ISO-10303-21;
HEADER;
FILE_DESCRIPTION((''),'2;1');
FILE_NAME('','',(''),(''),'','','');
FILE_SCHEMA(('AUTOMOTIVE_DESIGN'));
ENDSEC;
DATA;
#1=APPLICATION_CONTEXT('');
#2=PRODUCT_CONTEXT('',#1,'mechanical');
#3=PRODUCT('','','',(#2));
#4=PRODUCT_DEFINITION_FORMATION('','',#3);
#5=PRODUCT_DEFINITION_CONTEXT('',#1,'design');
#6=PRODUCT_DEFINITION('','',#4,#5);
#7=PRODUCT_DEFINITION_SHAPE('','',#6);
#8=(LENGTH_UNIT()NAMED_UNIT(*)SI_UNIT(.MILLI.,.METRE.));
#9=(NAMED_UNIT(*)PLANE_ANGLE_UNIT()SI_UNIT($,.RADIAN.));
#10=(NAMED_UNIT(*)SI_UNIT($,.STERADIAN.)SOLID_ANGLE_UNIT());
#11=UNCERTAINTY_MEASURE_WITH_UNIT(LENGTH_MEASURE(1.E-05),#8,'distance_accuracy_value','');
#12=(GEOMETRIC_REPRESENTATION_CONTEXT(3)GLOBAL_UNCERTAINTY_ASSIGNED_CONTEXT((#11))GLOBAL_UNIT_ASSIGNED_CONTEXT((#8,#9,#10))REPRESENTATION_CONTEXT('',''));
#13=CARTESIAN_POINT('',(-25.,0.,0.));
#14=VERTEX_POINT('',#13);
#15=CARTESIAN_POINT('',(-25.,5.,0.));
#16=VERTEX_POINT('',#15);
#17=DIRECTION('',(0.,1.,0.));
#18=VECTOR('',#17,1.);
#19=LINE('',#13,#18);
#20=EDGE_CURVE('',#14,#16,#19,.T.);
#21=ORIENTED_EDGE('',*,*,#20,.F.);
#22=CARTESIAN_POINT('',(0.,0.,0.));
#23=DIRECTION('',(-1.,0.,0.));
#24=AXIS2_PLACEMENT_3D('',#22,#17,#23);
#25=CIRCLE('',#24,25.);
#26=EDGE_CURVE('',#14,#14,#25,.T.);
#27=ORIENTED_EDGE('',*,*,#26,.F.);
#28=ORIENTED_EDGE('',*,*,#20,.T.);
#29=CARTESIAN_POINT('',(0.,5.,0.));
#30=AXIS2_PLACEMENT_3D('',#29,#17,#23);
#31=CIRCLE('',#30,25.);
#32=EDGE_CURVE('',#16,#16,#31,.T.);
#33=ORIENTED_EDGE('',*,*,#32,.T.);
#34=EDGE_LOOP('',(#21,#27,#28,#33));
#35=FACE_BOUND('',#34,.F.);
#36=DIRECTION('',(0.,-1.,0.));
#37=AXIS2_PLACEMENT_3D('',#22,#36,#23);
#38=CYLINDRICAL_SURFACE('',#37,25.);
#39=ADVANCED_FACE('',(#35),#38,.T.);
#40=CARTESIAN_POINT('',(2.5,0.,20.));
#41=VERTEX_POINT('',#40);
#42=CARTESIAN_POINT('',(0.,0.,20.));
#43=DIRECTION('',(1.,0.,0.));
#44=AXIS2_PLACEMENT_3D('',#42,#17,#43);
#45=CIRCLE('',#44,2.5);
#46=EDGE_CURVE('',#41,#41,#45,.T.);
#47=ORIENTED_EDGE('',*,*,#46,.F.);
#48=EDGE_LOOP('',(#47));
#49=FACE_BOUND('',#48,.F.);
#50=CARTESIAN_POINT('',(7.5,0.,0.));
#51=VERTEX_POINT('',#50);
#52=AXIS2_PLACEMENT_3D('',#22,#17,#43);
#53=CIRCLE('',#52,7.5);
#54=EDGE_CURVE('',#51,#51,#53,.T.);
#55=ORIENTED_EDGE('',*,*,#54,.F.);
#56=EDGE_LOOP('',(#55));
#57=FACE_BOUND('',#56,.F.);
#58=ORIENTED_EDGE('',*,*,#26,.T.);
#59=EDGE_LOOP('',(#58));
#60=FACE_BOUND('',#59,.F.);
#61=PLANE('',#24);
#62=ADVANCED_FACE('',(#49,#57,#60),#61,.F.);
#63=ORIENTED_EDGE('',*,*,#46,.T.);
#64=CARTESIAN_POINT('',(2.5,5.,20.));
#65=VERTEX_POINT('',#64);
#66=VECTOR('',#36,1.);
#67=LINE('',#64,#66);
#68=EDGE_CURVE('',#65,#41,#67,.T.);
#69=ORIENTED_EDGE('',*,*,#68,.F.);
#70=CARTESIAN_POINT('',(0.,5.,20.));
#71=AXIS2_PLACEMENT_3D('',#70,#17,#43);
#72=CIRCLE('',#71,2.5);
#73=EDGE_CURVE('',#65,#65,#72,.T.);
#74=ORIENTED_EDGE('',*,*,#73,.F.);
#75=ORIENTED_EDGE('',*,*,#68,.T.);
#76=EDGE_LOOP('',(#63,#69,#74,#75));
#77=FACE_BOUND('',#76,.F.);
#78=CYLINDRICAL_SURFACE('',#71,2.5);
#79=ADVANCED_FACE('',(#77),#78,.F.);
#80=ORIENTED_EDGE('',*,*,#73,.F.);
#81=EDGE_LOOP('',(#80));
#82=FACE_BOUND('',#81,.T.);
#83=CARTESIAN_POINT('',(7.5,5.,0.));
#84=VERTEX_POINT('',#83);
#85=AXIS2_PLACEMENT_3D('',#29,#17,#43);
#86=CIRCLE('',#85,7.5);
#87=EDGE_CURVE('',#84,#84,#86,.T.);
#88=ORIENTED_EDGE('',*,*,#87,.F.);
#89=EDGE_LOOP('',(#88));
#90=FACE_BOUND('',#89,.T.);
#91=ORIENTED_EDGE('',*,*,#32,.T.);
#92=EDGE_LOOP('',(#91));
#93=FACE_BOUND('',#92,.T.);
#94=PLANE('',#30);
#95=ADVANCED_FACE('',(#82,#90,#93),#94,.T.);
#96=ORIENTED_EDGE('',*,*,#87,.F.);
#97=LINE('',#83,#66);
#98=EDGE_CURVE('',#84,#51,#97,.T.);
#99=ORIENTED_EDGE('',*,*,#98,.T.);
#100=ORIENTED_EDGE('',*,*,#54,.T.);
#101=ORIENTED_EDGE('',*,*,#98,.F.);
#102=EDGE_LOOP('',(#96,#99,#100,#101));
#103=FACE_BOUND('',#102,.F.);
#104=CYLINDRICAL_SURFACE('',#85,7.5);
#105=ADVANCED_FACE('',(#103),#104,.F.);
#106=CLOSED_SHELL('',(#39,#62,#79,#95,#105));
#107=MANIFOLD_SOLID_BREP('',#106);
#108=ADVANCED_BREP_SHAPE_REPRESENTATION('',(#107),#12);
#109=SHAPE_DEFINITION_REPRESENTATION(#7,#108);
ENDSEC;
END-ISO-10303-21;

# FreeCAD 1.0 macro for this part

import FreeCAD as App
import Part
import Sketcher

doc = App.newDocument("Part")
body = doc.addObject("PartDesign::Body", "Body")

sketch1 = doc.addObject("Sketcher::SketchObject", "Sketch")
body.addObject(sketch1)
sketch1.AttachmentSupport = (doc.XZ_Plane, [""])
sketch1.MapMode = "FlatFace"
sketch1.addGeometry(Part.Circle(App.Vector(0, 0, 0), App.Vector(0, 0, 1), 25), False)
sketch1.addConstraint([
    Sketcher.Constraint("Coincident", 0, 3, -1, 1),
    Sketcher.Constraint("Diameter", 0, 50.0),
])
pad1 = doc.addObject("PartDesign::Pad", "Pad")
body.addObject(pad1)
pad1.Profile = sketch1
pad1.Length = 5
pad1.Reversed = True

sketch2 = doc.addObject("Sketcher::SketchObject", "Sketch001")
body.addObject(sketch2)
sketch2.AttachmentSupport = (doc.XZ_Plane, [""])
sketch2.MapMode = "FlatFace"
sketch2.AttachmentOffset = App.Placement(App.Vector(0, 0, -5), App.Rotation())
sketch2.addGeometry(Part.Circle(App.Vector(0, 0, 0), App.Vector(0, 0, 1), 8), False)
sketch2.addConstraint([
    Sketcher.Constraint("Coincident", 0, 3, -1, 1),
    Sketcher.Constraint("Diameter", 0, 15.0),
])
pocket1 = doc.addObject("PartDesign::Pocket", "Pocket")
body.addObject(pocket1)
pocket1.Profile = sketch2
pocket1.Type = "ThroughAll"
pocket1.Reversed = True

sketch3 = doc.addObject("Sketcher::SketchObject", "Sketch002")
body.addObject(sketch3)
sketch3.AttachmentSupport = (doc.XZ_Plane, [""])
sketch3.MapMode = "FlatFace"
sketch3.AttachmentOffset = App.Placement(App.Vector(0, 0, -5), App.Rotation())
sketch3.addGeometry(Part.Circle(App.Vector(0, 20, 0), App.Vector(0, 0, 1), 2.5), False)
sketch3.addConstraint([
    Sketcher.Constraint("PointOnObject", 0, 3, -2),
    Sketcher.Constraint("Diameter", 0, 5.0),
    Sketcher.Constraint("DistanceY", -1, 1, 0, 3, 20.0),
])
pocket2 = doc.addObject("PartDesign::Pocket", "Pocket001")
body.addObject(pocket2)
pocket2.Profile = sketch3
pocket2.Type = "ThroughAll"
pocket2.Reversed = True

doc.recompute()
